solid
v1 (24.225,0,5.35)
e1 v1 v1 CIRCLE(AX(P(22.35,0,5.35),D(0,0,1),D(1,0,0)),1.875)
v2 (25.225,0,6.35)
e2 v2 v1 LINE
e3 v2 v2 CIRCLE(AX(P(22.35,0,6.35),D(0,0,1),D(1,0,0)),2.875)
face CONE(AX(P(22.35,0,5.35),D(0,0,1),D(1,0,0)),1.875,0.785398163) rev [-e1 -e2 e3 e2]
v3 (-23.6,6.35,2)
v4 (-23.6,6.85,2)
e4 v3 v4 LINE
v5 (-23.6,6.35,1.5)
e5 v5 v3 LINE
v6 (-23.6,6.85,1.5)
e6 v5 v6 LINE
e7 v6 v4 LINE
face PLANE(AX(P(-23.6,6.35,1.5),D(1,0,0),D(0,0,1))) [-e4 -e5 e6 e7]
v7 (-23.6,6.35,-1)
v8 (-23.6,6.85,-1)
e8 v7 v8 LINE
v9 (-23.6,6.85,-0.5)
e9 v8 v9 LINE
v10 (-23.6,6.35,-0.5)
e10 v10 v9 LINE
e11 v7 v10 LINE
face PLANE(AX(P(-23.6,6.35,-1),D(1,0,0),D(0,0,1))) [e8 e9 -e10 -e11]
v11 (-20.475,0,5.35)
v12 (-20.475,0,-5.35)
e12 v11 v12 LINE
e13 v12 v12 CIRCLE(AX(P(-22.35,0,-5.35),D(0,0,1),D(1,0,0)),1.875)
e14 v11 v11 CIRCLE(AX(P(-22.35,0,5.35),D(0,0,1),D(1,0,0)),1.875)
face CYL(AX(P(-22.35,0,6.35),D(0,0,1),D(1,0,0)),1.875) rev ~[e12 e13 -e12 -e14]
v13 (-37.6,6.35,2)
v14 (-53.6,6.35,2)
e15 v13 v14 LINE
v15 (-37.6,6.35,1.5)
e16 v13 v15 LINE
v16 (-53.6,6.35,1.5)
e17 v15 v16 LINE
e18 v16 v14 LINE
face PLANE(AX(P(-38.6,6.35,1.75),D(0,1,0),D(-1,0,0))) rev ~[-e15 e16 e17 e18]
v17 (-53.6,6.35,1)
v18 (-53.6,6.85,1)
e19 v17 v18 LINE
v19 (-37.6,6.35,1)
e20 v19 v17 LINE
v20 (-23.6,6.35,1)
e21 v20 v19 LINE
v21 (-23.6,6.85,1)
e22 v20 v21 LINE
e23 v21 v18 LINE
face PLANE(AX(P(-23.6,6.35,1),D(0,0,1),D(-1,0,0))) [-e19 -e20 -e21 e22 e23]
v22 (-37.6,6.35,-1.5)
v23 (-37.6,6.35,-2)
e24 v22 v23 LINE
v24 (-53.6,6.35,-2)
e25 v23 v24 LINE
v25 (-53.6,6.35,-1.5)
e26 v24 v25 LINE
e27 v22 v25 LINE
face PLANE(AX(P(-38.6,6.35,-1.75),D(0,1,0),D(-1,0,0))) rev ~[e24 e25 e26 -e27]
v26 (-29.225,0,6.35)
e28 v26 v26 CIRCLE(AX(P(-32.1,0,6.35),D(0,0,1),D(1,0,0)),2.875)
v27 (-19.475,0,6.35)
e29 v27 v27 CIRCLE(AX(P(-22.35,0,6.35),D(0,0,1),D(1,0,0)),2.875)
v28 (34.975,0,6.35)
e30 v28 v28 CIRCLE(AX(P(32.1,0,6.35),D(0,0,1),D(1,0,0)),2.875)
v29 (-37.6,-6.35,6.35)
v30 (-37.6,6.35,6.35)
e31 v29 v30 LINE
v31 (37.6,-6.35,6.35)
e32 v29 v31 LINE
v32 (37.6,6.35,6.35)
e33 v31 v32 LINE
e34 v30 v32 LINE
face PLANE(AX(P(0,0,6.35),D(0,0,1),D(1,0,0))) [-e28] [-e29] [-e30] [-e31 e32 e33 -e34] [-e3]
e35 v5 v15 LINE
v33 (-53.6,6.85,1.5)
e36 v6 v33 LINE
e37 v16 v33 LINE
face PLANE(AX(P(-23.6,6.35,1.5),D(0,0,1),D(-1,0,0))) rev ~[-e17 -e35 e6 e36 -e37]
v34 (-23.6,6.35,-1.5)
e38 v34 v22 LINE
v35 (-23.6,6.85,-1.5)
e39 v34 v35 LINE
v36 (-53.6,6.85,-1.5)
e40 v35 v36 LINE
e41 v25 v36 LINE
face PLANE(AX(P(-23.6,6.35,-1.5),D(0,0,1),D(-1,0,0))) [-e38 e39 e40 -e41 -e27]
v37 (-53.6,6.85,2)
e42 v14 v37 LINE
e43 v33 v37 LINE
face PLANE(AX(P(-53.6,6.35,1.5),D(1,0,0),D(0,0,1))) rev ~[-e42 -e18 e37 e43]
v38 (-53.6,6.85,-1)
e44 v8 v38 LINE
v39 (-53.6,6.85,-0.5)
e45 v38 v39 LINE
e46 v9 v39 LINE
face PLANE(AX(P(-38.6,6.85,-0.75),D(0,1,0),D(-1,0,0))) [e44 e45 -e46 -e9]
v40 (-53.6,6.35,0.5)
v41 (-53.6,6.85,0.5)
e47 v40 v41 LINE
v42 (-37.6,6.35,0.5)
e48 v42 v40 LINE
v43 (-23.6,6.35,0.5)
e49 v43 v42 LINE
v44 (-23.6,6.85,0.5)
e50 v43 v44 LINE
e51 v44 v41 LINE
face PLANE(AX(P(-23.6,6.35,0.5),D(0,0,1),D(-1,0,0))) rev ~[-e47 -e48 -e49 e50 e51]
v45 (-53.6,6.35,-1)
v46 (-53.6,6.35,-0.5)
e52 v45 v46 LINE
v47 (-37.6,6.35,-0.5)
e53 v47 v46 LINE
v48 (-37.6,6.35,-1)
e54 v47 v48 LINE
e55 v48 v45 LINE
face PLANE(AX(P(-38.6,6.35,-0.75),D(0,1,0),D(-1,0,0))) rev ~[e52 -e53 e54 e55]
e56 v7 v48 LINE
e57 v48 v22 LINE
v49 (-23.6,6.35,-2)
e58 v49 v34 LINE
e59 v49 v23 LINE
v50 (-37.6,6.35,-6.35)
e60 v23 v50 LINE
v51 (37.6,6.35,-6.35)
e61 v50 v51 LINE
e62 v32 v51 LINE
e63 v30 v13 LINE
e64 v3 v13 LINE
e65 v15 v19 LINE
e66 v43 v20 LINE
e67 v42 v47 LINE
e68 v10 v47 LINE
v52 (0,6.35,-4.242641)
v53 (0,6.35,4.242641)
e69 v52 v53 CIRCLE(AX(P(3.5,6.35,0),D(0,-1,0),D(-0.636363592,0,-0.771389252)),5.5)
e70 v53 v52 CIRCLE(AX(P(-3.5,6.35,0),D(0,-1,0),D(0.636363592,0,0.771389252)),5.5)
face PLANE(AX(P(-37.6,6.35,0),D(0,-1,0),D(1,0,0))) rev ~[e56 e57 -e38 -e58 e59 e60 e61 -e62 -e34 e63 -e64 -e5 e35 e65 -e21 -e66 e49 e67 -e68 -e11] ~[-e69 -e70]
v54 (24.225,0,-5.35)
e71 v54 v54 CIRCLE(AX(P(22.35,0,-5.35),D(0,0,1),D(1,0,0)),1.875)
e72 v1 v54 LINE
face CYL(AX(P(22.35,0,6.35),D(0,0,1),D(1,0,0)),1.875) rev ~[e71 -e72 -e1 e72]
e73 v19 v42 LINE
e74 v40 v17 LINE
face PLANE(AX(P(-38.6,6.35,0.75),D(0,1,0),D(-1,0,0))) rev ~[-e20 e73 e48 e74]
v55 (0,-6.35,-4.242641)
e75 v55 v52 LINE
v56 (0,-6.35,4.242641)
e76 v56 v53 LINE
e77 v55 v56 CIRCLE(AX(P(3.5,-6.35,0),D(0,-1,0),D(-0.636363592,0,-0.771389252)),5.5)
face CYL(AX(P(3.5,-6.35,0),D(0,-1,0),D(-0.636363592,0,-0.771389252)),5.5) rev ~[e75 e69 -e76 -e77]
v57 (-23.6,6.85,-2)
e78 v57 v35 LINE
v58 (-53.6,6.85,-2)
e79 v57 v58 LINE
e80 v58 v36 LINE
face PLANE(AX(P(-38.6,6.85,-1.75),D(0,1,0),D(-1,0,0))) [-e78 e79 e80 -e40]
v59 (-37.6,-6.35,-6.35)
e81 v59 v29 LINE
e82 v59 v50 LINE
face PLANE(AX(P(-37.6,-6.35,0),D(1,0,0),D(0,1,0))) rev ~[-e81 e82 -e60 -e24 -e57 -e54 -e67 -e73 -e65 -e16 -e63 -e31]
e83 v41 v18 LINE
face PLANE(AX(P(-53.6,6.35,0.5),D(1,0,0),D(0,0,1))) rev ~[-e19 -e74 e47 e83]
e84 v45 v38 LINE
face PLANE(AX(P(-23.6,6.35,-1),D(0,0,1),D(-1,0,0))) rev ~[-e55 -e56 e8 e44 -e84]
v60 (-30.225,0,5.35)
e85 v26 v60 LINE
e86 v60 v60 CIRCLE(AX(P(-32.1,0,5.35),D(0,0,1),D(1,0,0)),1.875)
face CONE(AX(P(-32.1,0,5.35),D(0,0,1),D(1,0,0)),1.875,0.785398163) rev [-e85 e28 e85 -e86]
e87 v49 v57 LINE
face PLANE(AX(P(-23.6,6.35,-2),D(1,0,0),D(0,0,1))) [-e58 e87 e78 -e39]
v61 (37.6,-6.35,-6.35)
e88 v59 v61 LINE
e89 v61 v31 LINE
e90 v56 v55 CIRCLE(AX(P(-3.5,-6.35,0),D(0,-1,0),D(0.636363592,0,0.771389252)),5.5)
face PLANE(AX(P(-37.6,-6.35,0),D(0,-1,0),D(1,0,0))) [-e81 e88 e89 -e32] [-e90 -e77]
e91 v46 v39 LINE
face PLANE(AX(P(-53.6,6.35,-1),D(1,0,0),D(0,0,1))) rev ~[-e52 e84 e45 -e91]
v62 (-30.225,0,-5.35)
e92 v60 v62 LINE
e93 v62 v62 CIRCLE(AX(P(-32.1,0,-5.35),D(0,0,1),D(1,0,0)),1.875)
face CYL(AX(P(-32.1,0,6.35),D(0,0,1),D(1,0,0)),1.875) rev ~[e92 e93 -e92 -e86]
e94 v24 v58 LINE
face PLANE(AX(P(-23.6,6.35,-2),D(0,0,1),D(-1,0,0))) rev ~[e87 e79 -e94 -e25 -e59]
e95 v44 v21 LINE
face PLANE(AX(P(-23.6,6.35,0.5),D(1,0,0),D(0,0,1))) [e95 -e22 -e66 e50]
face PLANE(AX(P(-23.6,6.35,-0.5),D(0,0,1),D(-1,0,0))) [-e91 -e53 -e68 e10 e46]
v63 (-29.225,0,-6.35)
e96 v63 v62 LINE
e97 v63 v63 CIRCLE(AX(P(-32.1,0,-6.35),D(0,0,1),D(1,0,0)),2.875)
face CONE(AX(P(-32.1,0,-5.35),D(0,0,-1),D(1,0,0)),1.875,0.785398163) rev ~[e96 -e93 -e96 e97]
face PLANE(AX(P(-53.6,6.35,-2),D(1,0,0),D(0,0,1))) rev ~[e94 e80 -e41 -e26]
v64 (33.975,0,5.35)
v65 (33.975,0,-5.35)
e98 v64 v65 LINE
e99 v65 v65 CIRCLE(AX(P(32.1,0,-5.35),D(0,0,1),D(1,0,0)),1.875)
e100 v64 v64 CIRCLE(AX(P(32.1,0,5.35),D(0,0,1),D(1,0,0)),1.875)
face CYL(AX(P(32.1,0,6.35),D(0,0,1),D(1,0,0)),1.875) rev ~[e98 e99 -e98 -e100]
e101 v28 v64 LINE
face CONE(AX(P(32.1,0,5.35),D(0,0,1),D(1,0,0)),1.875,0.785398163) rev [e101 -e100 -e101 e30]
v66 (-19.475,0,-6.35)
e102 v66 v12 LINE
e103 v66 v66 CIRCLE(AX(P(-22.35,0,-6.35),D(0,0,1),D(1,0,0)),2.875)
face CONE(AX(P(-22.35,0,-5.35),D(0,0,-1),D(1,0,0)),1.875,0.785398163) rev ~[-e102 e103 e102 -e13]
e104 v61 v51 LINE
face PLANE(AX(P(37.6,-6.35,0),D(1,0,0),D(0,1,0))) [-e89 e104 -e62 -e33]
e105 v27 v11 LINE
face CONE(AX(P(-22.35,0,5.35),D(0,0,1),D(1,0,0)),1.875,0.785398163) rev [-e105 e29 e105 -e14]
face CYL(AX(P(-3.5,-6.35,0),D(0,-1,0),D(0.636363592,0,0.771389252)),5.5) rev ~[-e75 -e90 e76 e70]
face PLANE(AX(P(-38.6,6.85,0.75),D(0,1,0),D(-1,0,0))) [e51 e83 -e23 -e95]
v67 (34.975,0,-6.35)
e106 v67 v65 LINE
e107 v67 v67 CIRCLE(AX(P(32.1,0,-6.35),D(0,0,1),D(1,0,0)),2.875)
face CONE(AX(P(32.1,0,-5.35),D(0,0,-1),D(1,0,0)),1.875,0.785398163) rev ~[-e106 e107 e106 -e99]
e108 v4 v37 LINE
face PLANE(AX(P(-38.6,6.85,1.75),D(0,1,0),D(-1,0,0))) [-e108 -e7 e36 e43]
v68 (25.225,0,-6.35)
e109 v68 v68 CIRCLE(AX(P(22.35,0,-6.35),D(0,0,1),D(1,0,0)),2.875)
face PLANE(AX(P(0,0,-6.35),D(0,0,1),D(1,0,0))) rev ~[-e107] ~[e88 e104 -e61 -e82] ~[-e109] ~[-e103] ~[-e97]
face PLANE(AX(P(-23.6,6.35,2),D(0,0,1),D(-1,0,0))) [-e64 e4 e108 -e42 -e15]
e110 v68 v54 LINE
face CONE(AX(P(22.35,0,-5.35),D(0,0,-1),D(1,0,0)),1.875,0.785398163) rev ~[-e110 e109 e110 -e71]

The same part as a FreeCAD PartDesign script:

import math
import FreeCAD as App
import Part
import Sketcher

V = App.Vector
Q = App.Units.Quantity


def edges_at(feature, points):
    """Names of the edges that pass closest to the given points."""
    edges = feature.Shape.Edges
    near = lambda p: min(range(len(edges)), key=lambda i: edges[i].distToShape(Part.Vertex(*p))[0])
    return sorted({f"Edge{near(p) + 1}" for p in points})

doc = App.newDocument("Part")
body = doc.addObject("PartDesign::Body", "Body")

sketch1 = body.newObject("Sketcher::SketchObject", "Sketch")
sketch1.AttachmentSupport = (doc.getObject("XY_Plane"), [""])
sketch1.MapMode = "FlatFace"
sketch1.addGeometry(Part.LineSegment(V(-38, 6, 0), V(-38, -6, 0)), False)
sketch1.addGeometry(Part.LineSegment(V(-38, -6, 0), V(38, -6, 0)), False)
sketch1.addGeometry(Part.LineSegment(V(38, -6, 0), V(38, 6, 0)), False)
sketch1.addGeometry(Part.LineSegment(V(38, 6, 0), V(-38, 6, 0)), False)
sketch1.addConstraint(Sketcher.Constraint("Coincident", 0, 2, 1, 1))
sketch1.addConstraint(Sketcher.Constraint("Coincident", 1, 2, 2, 1))
sketch1.addConstraint(Sketcher.Constraint("Coincident", 2, 2, 3, 1))
sketch1.addConstraint(Sketcher.Constraint("Coincident", 3, 2, 0, 1))
sketch1.addConstraint(Sketcher.Constraint("Vertical", 0))
sketch1.addConstraint(Sketcher.Constraint("Horizontal", 1))
sketch1.addConstraint(Sketcher.Constraint("Vertical", 2))
sketch1.addConstraint(Sketcher.Constraint("Horizontal", 3))
sketch1.addConstraint(Sketcher.Constraint("Symmetric", 0, 2, 2, 2, -1, 1))
sketch1.addConstraint(Sketcher.Constraint("DistanceX", 1, 1, 1, 2, Q("75.2 mm")))
sketch1.addConstraint(Sketcher.Constraint("DistanceY", 0, 2, 0, 1, Q("12.7 mm")))
pad1 = body.newObject("PartDesign::Pad", "Pad")
pad1.Profile = sketch1
pad1.Type = "TwoLengths"
pad1.Length = 6.35
pad1.Length2 = 6.35

sketch2 = body.newObject("Sketcher::SketchObject", "Sketch001")
sketch2.AttachmentSupport = (doc.getObject("XZ_Plane"), [""])
sketch2.MapMode = "FlatFace"
sketch2.AttachmentOffset = App.Placement(V(0, 0, 6.35), App.Rotation())
sketch2.addGeometry(Part.ArcOfCircle(Part.Circle(V(-3, 0, 0), V(0, 0, 1), 6), math.radians(50), math.radians(310)), False)
sketch2.addGeometry(Part.ArcOfCircle(Part.Circle(V(3, 0, 0), V(0, 0, 1), 6), math.radians(-130), math.radians(130)), False)
sketch2.addConstraint(Sketcher.Constraint("Coincident", 0, 1, 1, 2))
sketch2.addConstraint(Sketcher.Constraint("Coincident", 1, 1, 0, 2))
sketch2.addConstraint(Sketcher.Constraint("Equal", 0, 1))
sketch2.addConstraint(Sketcher.Constraint("Symmetric", 0, 3, 1, 3, -1, 1))
sketch2.addConstraint(Sketcher.Constraint("PointOnObject", 0, 3, -1))
sketch2.addConstraint(Sketcher.Constraint("Radius", 0, Q("5.5 mm")))
sketch2.addConstraint(Sketcher.Constraint("DistanceX", 0, 3, 1, 3, Q("7 mm")))
pocket1 = body.newObject("PartDesign::Pocket", "Pocket")
pocket1.Profile = sketch2
pocket1.Length = 25

sketch3 = body.newObject("Sketcher::SketchObject", "Sketch002")
sketch3.AttachmentSupport = (doc.getObject("XZ_Plane"), [""])
sketch3.MapMode = "FlatFace"
sketch3.AttachmentOffset = App.Placement(V(0, 0, -6.35), App.Rotation())
sketch3.addGeometry(Part.LineSegment(V(-23.6, 2, 0), V(-23.6, 1.5, 0)), False)
sketch3.addGeometry(Part.LineSegment(V(-23.6, 1.5, 0), V(-53.6, 1.5, 0)), False)
sketch3.addGeometry(Part.LineSegment(V(-53.6, 1.5, 0), V(-53.6, 2, 0)), False)
sketch3.addGeometry(Part.LineSegment(V(-53.6, 2, 0), V(-23.6, 2, 0)), False)
sketch3.addGeometry(Part.LineSegment(V(-23.6, 1, 0), V(-23.6, 0.5, 0)), False)
sketch3.addGeometry(Part.LineSegment(V(-23.6, 0.5, 0), V(-53.6, 0.5, 0)), False)
sketch3.addGeometry(Part.LineSegment(V(-53.6, 0.5, 0), V(-53.6, 1, 0)), False)
sketch3.addGeometry(Part.LineSegment(V(-53.6, 1, 0), V(-23.6, 1, 0)), False)
sketch3.addGeometry(Part.LineSegment(V(-23.6, -0.5, 0), V(-23.6, -1, 0)), False)
sketch3.addGeometry(Part.LineSegment(V(-23.6, -1, 0), V(-53.6, -1, 0)), False)
sketch3.addGeometry(Part.LineSegment(V(-53.6, -1, 0), V(-53.6, -0.5, 0)), False)
sketch3.addGeometry(Part.LineSegment(V(-53.6, -0.5, 0), V(-23.6, -0.5, 0)), False)
sketch3.addGeometry(Part.LineSegment(V(-23.6, -1.5, 0), V(-23.6, -2, 0)), False)
sketch3.addGeometry(Part.LineSegment(V(-23.6, -2, 0), V(-53.6, -2, 0)), False)
sketch3.addGeometry(Part.LineSegment(V(-53.6, -2, 0), V(-53.6, -1.5, 0)), False)
sketch3.addGeometry(Part.LineSegment(V(-53.6, -1.5, 0), V(-23.6, -1.5, 0)), False)
sketch3.addConstraint(Sketcher.Constraint("Coincident", 0, 2, 1, 1))
sketch3.addConstraint(Sketcher.Constraint("Coincident", 1, 2, 2, 1))
sketch3.addConstraint(Sketcher.Constraint("Coincident", 2, 2, 3, 1))
sketch3.addConstraint(Sketcher.Constraint("Coincident", 3, 2, 0, 1))
sketch3.addConstraint(Sketcher.Constraint("Coincident", 4, 2, 5, 1))
sketch3.addConstraint(Sketcher.Constraint("Coincident", 5, 2, 6, 1))
sketch3.addConstraint(Sketcher.Constraint("Coincident", 6, 2, 7, 1))
sketch3.addConstraint(Sketcher.Constraint("Coincident", 7, 2, 4, 1))
sketch3.addConstraint(Sketcher.Constraint("Coincident", 8, 2, 9, 1))
sketch3.addConstraint(Sketcher.Constraint("Coincident", 9, 2, 10, 1))
sketch3.addConstraint(Sketcher.Constraint("Coincident", 10, 2, 11, 1))
sketch3.addConstraint(Sketcher.Constraint("Coincident", 11, 2, 8, 1))
sketch3.addConstraint(Sketcher.Constraint("Coincident", 12, 2, 13, 1))
sketch3.addConstraint(Sketcher.Constraint("Coincident", 13, 2, 14, 1))
sketch3.addConstraint(Sketcher.Constraint("Coincident", 14, 2, 15, 1))
sketch3.addConstraint(Sketcher.Constraint("Coincident", 15, 2, 12, 1))
sketch3.addConstraint(Sketcher.Constraint("Vertical", 0))
sketch3.addConstraint(Sketcher.Constraint("Horizontal", 1))
sketch3.addConstraint(Sketcher.Constraint("Vertical", 2))
sketch3.addConstraint(Sketcher.Constraint("Horizontal", 3))
sketch3.addConstraint(Sketcher.Constraint("Vertical", 4))
sketch3.addConstraint(Sketcher.Constraint("Horizontal", 5))
sketch3.addConstraint(Sketcher.Constraint("Vertical", 6))
sketch3.addConstraint(Sketcher.Constraint("Horizontal", 7))
sketch3.addConstraint(Sketcher.Constraint("Vertical", 8))
sketch3.addConstraint(Sketcher.Constraint("Horizontal", 9))
sketch3.addConstraint(Sketcher.Constraint("Vertical", 10))
sketch3.addConstraint(Sketcher.Constraint("Horizontal", 11))
sketch3.addConstraint(Sketcher.Constraint("Vertical", 12))
sketch3.addConstraint(Sketcher.Constraint("Horizontal", 13))
sketch3.addConstraint(Sketcher.Constraint("Vertical", 14))
sketch3.addConstraint(Sketcher.Constraint("Horizontal", 15))
sketch3.addConstraint(Sketcher.Constraint("Symmetric", 7, 2, 8, 2, -1))
sketch3.addConstraint(Sketcher.Constraint("Symmetric", 5, 2, 10, 2, -1))
sketch3.addConstraint(Sketcher.Constraint("Symmetric", 3, 2, 12, 2, -1))
sketch3.addConstraint(Sketcher.Constraint("Symmetric", 1, 2, 14, 2, -1))
sketch3.addConstraint(Sketcher.Constraint("Vertical", 3, 2, 4, 2))
sketch3.addConstraint(Sketcher.Constraint("Vertical", 2, 2, 5, 2))
sketch3.addConstraint(Sketcher.Constraint("Equal", 2, 4))
sketch3.addConstraint(Sketcher.Constraint("DistanceX", 1, 2, 1, 1, Q("30 mm")))
sketch3.addConstraint(Sketcher.Constraint("DistanceY", 0, 2, 0, 1, Q("0.5 mm")))
sketch3.addConstraint(Sketcher.Constraint("DistanceY", -1, 1, 2, 2, Q("2 mm")))
sketch3.addConstraint(Sketcher.Constraint("DistanceY", -1, 1, 6, 2, Q("1 mm")))
sketch3.addConstraint(Sketcher.Constraint("DistanceX", 0, 2, -1, 1, Q("23.6 mm")))
pad2 = body.newObject("PartDesign::Pad", "Pad001")
pad2.Profile = sketch3
pad2.Length = 0.5
pad2.Reversed = True

sketch4 = body.newObject("Sketcher::SketchObject", "Sketch003")
sketch4.AttachmentSupport = (doc.getObject("XY_Plane"), [""])
sketch4.MapMode = "FlatFace"
sketch4.AttachmentOffset = App.Placement(V(0, 0, 6.35), App.Rotation())
sketch4.addGeometry(Part.Circle(V(32.1, 0, 0), V(0, 0, 1), 1.9), False)
sketch4.addGeometry(Part.Circle(V(22.4, 0, 0), V(0, 0, 1), 1.9), False)
sketch4.addGeometry(Part.Circle(V(-22.4, 0, 0), V(0, 0, 1), 1.9), False)
sketch4.addGeometry(Part.Circle(V(-32.1, 0, 0), V(0, 0, 1), 1.9), False)
sketch4.addConstraint(Sketcher.Constraint("Equal", 0, 1))
sketch4.addConstraint(Sketcher.Constraint("Equal", 1, 2))
sketch4.addConstraint(Sketcher.Constraint("Equal", 2, 3))
sketch4.addConstraint(Sketcher.Constraint("Symmetric", 1, 3, 2, 3, -1, 1))
sketch4.addConstraint(Sketcher.Constraint("Symmetric", 0, 3, 3, 3, -1, 1))
sketch4.addConstraint(Sketcher.Constraint("PointOnObject", 0, 3, -1))
sketch4.addConstraint(Sketcher.Constraint("PointOnObject", 1, 3, -1))
sketch4.addConstraint(Sketcher.Constraint("Diameter", 0, Q("3.75 mm")))
sketch4.addConstraint(Sketcher.Constraint("DistanceX", -1, 1, 0, 3, Q("32.1 mm")))
sketch4.addConstraint(Sketcher.Constraint("DistanceX", 2, 3, 1, 3, Q("44.7 mm")))
pocket2 = body.newObject("PartDesign::Pocket", "Pocket001")
pocket2.Profile = sketch4
pocket2.Length = 25
doc.recompute()

chamfer = body.newObject("PartDesign::Chamfer", "Chamfer")
chamfer.Base = (pocket2, edges_at(pocket2, [
    (30.225, 0, 6.35),
    (20.475, 0, 6.35),
    (-24.225, 0, 6.35),
    (-33.975, 0, 6.35),
    (-33.975, 0, -6.35),
    (-24.225, 0, -6.35),
    (20.475, 0, -6.35),
    (30.225, 0, -6.35),
]))
chamfer.Size = 1

doc.recompute()
